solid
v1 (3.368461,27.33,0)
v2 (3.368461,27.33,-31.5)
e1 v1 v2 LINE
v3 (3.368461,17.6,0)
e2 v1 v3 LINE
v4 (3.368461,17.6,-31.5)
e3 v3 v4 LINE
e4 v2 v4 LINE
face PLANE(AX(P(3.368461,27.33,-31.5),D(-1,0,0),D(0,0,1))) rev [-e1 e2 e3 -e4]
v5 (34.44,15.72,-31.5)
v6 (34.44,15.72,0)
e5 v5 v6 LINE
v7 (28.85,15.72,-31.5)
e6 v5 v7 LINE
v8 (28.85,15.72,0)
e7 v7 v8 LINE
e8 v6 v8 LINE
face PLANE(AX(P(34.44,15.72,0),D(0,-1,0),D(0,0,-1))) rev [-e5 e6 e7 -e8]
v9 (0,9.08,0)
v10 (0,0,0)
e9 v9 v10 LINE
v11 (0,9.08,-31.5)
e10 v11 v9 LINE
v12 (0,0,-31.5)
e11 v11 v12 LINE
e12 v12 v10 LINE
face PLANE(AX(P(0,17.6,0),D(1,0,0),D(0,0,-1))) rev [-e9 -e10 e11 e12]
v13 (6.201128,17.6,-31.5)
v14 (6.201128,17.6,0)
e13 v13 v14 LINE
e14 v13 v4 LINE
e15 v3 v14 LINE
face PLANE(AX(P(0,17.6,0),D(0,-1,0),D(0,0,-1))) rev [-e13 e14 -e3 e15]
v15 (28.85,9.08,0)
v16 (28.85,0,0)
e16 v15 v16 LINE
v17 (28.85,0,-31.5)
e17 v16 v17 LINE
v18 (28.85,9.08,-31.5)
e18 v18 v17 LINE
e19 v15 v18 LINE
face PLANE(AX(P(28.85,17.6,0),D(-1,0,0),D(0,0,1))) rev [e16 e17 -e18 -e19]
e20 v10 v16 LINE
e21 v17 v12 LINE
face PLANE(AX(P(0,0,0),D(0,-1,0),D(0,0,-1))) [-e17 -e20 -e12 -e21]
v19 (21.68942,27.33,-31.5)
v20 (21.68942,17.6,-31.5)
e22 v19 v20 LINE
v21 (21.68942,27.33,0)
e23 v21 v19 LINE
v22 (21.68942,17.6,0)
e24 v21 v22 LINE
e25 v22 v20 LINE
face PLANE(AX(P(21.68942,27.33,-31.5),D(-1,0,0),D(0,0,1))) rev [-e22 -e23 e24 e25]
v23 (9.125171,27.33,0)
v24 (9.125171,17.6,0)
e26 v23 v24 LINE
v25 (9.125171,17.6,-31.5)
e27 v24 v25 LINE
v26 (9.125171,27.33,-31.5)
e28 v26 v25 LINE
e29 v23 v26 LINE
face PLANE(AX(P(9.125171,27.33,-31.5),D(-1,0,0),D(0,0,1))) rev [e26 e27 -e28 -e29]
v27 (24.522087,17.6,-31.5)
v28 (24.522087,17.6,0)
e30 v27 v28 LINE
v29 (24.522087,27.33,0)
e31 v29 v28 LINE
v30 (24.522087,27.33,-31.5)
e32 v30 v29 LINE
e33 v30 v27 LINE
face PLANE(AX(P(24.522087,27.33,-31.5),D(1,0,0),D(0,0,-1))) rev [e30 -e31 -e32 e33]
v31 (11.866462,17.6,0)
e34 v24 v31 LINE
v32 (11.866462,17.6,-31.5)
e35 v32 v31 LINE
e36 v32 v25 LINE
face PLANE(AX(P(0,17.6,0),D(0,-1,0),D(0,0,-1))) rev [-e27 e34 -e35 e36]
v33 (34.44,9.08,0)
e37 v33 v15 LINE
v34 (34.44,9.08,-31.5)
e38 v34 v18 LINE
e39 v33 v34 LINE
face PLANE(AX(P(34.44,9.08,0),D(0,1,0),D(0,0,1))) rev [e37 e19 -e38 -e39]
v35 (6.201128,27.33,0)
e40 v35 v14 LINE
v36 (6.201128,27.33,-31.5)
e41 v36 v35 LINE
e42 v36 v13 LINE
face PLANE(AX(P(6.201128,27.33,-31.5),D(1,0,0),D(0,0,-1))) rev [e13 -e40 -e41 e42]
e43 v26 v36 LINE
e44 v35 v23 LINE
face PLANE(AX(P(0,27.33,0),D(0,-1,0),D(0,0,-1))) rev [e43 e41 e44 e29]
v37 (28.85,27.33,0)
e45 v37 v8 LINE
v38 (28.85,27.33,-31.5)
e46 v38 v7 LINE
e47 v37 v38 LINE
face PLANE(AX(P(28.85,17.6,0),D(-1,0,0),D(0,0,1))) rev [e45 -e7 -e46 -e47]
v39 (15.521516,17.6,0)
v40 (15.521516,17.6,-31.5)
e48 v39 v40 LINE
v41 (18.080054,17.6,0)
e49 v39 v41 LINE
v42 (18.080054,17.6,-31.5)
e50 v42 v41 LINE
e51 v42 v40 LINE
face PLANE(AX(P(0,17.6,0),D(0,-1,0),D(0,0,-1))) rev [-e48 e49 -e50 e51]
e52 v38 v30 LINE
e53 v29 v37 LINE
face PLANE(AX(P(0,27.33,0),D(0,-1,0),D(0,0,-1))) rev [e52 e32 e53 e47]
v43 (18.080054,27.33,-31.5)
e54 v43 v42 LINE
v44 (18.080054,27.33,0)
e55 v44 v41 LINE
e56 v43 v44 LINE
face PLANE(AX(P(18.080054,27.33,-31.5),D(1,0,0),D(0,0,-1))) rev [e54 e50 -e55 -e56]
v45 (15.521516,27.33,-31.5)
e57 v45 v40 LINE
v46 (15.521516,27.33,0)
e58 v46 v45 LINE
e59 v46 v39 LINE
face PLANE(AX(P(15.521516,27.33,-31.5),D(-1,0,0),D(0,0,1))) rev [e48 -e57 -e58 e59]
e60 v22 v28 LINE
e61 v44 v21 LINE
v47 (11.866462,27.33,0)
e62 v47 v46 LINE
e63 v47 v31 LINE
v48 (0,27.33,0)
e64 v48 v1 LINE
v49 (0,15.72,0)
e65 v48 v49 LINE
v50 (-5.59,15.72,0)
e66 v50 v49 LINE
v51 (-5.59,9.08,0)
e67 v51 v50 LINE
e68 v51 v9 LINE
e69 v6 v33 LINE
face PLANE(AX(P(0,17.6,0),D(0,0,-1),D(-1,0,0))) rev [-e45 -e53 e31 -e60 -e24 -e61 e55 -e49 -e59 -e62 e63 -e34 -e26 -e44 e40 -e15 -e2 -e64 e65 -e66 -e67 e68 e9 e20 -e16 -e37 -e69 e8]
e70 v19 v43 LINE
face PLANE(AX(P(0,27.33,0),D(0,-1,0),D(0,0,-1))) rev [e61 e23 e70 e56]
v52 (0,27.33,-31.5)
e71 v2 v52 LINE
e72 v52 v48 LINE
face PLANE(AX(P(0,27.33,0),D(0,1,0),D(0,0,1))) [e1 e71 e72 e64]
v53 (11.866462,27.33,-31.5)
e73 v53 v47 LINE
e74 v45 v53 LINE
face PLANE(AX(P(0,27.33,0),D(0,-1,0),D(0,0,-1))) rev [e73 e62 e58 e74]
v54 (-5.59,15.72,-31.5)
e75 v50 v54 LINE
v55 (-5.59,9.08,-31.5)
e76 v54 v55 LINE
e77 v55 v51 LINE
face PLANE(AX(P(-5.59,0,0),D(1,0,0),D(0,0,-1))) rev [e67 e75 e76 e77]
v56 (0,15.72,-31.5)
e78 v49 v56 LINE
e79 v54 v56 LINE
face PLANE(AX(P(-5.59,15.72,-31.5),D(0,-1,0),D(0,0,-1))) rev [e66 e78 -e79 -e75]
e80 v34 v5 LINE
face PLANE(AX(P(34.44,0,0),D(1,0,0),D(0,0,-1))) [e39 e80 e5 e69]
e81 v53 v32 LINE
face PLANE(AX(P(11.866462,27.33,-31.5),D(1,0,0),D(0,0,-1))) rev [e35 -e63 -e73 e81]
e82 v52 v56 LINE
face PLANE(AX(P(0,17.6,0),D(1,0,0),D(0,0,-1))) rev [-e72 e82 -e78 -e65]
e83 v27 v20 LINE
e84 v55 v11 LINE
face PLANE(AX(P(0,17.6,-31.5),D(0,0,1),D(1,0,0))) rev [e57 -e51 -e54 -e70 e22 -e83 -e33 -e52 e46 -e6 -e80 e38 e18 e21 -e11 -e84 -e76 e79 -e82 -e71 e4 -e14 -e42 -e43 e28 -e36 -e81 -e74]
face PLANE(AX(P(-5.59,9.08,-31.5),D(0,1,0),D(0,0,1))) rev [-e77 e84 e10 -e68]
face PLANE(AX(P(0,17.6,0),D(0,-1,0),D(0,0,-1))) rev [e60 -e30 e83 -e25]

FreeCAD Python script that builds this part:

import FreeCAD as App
import Part
import Sketcher
from FreeCAD import Vector


def add_polygon(sketch, points):
    """Adds a closed chain of lines whose ends are joined by coincident constraints."""
    first, n = sketch.GeometryCount, len(points)
    for a, b in zip(points, points[1:] + points[:1]):
        sketch.addGeometry(Part.LineSegment(App.Vector(*a, 0), App.Vector(*b, 0)), False)
    for i in range(n):
        sketch.addConstraint(Sketcher.Constraint("Coincident", first + i, 2, first + (i + 1) % n, 1))

doc = App.newDocument("Part")
body = doc.addObject("PartDesign::Body", "Body")

# Sketch on XZ plane
sketch1 = body.newObject("Sketcher::SketchObject", "Sketch")
sketch1.AttachmentSupport = (doc.getObject("XZ_Plane"), [""])
sketch1.MapMode = "FlatFace"
add_polygon(sketch1, [(0, -31.5), (0, 0), (28.85, 0), (28.85, -31.5)])  # lines 0-3
sketch1.addConstraint(Sketcher.Constraint("Vertical", 0))
sketch1.addConstraint(Sketcher.Constraint("Horizontal", 1))
sketch1.addConstraint(Sketcher.Constraint("Vertical", 2))
sketch1.addConstraint(Sketcher.Constraint("Horizontal", 3))
sketch1.addConstraint(Sketcher.Constraint("Coincident", 0, 2, -1, 1))
sketch1.addConstraint(Sketcher.Constraint("DistanceY", 0, 1, 0, 2, 31.5))
sketch1.addConstraint(Sketcher.Constraint("DistanceX", 1, 1, 1, 2, 28.85))
pad1 = body.newObject("PartDesign::Pad", "Pad")
pad1.Profile = sketch1
pad1.Length = 17.6
pad1.Reversed = True

# Sketch on XZ plane
sketch2 = body.newObject("Sketcher::SketchObject", "Sketch001")
sketch2.AttachmentSupport = (doc.getObject("XZ_Plane"), [""])
sketch2.MapMode = "FlatFace"
sketch2.AttachmentOffset = App.Placement(Vector(0, 0, -17.6), App.Rotation())
add_polygon(sketch2, [(0, -31.5), (0, 0), (3.368461, 0), (3.368461, -31.5)])  # lines 0-3
add_polygon(sketch2, [(24.522087, -31.5), (24.522087, 0), (28.85, 0), (28.85, -31.5)])  # lines 4-7
add_polygon(sketch2, [(18.080054, -31.5), (18.080054, 0), (21.68942, 0), (21.68942, -31.5)])  # lines 8-11
add_polygon(sketch2, [(11.866462, -31.5), (11.866462, 0), (15.521516, 0), (15.521516, -31.5)])  # lines 12-15
add_polygon(sketch2, [(6.201128, -31.5), (6.201128, 0), (9.125171, 0), (9.125171, -31.5)])  # lines 16-19
sketch2.addConstraint(Sketcher.Constraint("Vertical", 0))
sketch2.addConstraint(Sketcher.Constraint("Horizontal", 1))
sketch2.addConstraint(Sketcher.Constraint("Vertical", 2))
sketch2.addConstraint(Sketcher.Constraint("Horizontal", 3))
sketch2.addConstraint(Sketcher.Constraint("Vertical", 4))
sketch2.addConstraint(Sketcher.Constraint("Horizontal", 5))
sketch2.addConstraint(Sketcher.Constraint("Vertical", 6))
sketch2.addConstraint(Sketcher.Constraint("Horizontal", 7))
sketch2.addConstraint(Sketcher.Constraint("Vertical", 8))
sketch2.addConstraint(Sketcher.Constraint("Horizontal", 9))
sketch2.addConstraint(Sketcher.Constraint("Vertical", 10))
sketch2.addConstraint(Sketcher.Constraint("Horizontal", 11))
sketch2.addConstraint(Sketcher.Constraint("Vertical", 12))
sketch2.addConstraint(Sketcher.Constraint("Horizontal", 13))
sketch2.addConstraint(Sketcher.Constraint("Vertical", 14))
sketch2.addConstraint(Sketcher.Constraint("Horizontal", 15))
sketch2.addConstraint(Sketcher.Constraint("Vertical", 16))
sketch2.addConstraint(Sketcher.Constraint("Horizontal", 17))
sketch2.addConstraint(Sketcher.Constraint("Vertical", 18))
sketch2.addConstraint(Sketcher.Constraint("Horizontal", 19))
sketch2.addConstraint(Sketcher.Constraint("Coincident", 0, 2, -1, 1))
sketch2.addConstraint(Sketcher.Constraint("PointOnObject", 4, 2, -1))
sketch2.addConstraint(Sketcher.Constraint("PointOnObject", 8, 2, -1))
sketch2.addConstraint(Sketcher.Constraint("PointOnObject", 12, 2, -1))
sketch2.addConstraint(Sketcher.Constraint("PointOnObject", 16, 2, -1))
sketch2.addConstraint(Sketcher.Constraint("Horizontal", 3, 2, 6, 2))
sketch2.addConstraint(Sketcher.Constraint("Horizontal", 7, 2, 10, 2))
sketch2.addConstraint(Sketcher.Constraint("Horizontal", 11, 2, 14, 2))
sketch2.addConstraint(Sketcher.Constraint("Horizontal", 15, 2, 18, 2))
sketch2.addConstraint(Sketcher.Constraint("DistanceY", 0, 1, 0, 2, 31.5))
sketch2.addConstraint(Sketcher.Constraint("DistanceX", -1, 1, 5, 2, 28.85))
sketch2.addConstraint(Sketcher.Constraint("DistanceX", 1, 2, 12, 2, 8.498001))
sketch2.addConstraint(Sketcher.Constraint("DistanceX", 1, 1, 1, 2, 3.368461))
sketch2.addConstraint(Sketcher.Constraint("DistanceX", 5, 1, 5, 2, 4.327913))
sketch2.addConstraint(Sketcher.Constraint("DistanceX", 9, 1, 9, 2, 3.609366))
sketch2.addConstraint(Sketcher.Constraint("DistanceX", 13, 1, 13, 2, 3.655054))
sketch2.addConstraint(Sketcher.Constraint("DistanceX", 17, 1, 17, 2, 2.924043))
sketch2.addConstraint(Sketcher.Constraint("DistanceX", -1, 1, 9, 2, 21.68942))
sketch2.addConstraint(Sketcher.Constraint("DistanceX", -1, 1, 17, 2, 9.125171))
pad2 = body.newObject("PartDesign::Pad", "Pad001")
pad2.Profile = sketch2
pad2.Length = 9.73
pad2.Reversed = True

# Sketch on YZ plane
sketch3 = body.newObject("Sketcher::SketchObject", "Sketch002")
sketch3.AttachmentSupport = (doc.getObject("YZ_Plane"), [""])
sketch3.MapMode = "FlatFace"
add_polygon(sketch3, [(15.72, -31.5), (9.08, -31.5), (9.08, 0), (15.72, 0)])  # lines 0-3
sketch3.addConstraint(Sketcher.Constraint("Horizontal", 0))
sketch3.addConstraint(Sketcher.Constraint("Vertical", 1))
sketch3.addConstraint(Sketcher.Constraint("Horizontal", 2))
sketch3.addConstraint(Sketcher.Constraint("Vertical", 3))
sketch3.addConstraint(Sketcher.Constraint("PointOnObject", 1, 2, -1))
sketch3.addConstraint(Sketcher.Constraint("DistanceY", 1, 1, 1, 2, 31.5))
sketch3.addConstraint(Sketcher.Constraint("DistanceX", 0, 2, 0, 1, 6.64))
sketch3.addConstraint(Sketcher.Constraint("DistanceX", -1, 1, 0, 2, 9.08))
pad3 = body.newObject("PartDesign::Pad", "Pad002")
pad3.Profile = sketch3
pad3.Length = 5.59
pad3.Reversed = True

# Sketch on YZ plane
sketch4 = body.newObject("Sketcher::SketchObject", "Sketch003")
sketch4.AttachmentSupport = (doc.getObject("YZ_Plane"), [""])
sketch4.MapMode = "FlatFace"
sketch4.AttachmentOffset = App.Placement(Vector(0, 0, 28.85), App.Rotation())
add_polygon(sketch4, [(15.72, 0), (9.08, 0), (9.08, -31.5), (15.72, -31.5)])  # lines 0-3
sketch4.addConstraint(Sketcher.Constraint("Horizontal", 0))
sketch4.addConstraint(Sketcher.Constraint("Vertical", 1))
sketch4.addConstraint(Sketcher.Constraint("Horizontal", 2))
sketch4.addConstraint(Sketcher.Constraint("Vertical", 3))
sketch4.addConstraint(Sketcher.Constraint("PointOnObject", 0, 2, -1))
sketch4.addConstraint(Sketcher.Constraint("DistanceY", 1, 2, 1, 1, 31.5))
sketch4.addConstraint(Sketcher.Constraint("DistanceX", 0, 2, 0, 1, 6.64))
sketch4.addConstraint(Sketcher.Constraint("DistanceX", -1, 1, 0, 2, 9.08))
pad4 = body.newObject("PartDesign::Pad", "Pad003")
pad4.Profile = sketch4
pad4.Length = 5.59

doc.recompute()
